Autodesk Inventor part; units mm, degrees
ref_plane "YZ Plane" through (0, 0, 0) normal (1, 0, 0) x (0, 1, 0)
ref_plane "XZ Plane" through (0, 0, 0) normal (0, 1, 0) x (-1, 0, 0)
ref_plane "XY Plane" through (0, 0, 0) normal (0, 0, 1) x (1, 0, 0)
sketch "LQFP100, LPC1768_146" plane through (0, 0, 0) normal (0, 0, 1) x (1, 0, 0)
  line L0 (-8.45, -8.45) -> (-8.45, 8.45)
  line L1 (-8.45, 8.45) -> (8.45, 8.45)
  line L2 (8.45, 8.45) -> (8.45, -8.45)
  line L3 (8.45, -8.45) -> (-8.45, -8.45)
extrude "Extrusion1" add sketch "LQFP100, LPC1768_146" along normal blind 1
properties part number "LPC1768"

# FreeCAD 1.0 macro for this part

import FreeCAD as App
import Part
import Sketcher

V = App.Vector
Q = App.Units.Quantity


def add_polygon(sketch, points):
    """Adds a closed chain of lines whose ends are joined by coincident constraints."""
    first, n = sketch.GeometryCount, len(points)
    for a, b in zip(points, points[1:] + points[:1]):
        sketch.addGeometry(Part.LineSegment(App.Vector(*a, 0), App.Vector(*b, 0)), False)
    for i in range(n):
        sketch.addConstraint(Sketcher.Constraint("Coincident", first + i, 2, first + (i + 1) % n, 1))

doc = App.newDocument("Part")
params = doc.addObject("Spreadsheet::Sheet", "Params")
for row, (alias, value) in enumerate([
    ("sketch1_width", "16.9 mm"),
    ("pad1_length", "1 mm"),
], start=1):
    params.set(f"A{row}", alias)
    params.set(f"B{row}", "=" + value)
    params.setAlias(f"B{row}", alias)

body = doc.addObject("PartDesign::Body", "Body")

sketch1 = body.newObject("Sketcher::SketchObject", "Sketch")
sketch1.AttachmentSupport = (doc.getObject("XY_Plane"), [""])
sketch1.MapMode = "FlatFace"
add_polygon(sketch1, [(-8, 8), (-8, -8), (8, -8), (8, 8)])
sketch1.addConstraint([
    Sketcher.Constraint("Vertical", 0),
    Sketcher.Constraint("Horizontal", 1),
    Sketcher.Constraint("Vertical", 2),
    Sketcher.Constraint("Horizontal", 3),
    Sketcher.Constraint("Symmetric", 0, 2, 2, 2, -1, 1),
    Sketcher.Constraint("Equal", 3, 0),
    Sketcher.Constraint("DistanceX", 1, 1, 1, 2, Q("16.9 mm")),
])
sketch1.setExpression("Constraints[10]", "Params.sketch1_width")
pad1 = body.newObject("PartDesign::Pad", "Pad")
pad1.Profile = sketch1
pad1.setExpression("Length", "Params.pad1_length")

doc.recompute()
